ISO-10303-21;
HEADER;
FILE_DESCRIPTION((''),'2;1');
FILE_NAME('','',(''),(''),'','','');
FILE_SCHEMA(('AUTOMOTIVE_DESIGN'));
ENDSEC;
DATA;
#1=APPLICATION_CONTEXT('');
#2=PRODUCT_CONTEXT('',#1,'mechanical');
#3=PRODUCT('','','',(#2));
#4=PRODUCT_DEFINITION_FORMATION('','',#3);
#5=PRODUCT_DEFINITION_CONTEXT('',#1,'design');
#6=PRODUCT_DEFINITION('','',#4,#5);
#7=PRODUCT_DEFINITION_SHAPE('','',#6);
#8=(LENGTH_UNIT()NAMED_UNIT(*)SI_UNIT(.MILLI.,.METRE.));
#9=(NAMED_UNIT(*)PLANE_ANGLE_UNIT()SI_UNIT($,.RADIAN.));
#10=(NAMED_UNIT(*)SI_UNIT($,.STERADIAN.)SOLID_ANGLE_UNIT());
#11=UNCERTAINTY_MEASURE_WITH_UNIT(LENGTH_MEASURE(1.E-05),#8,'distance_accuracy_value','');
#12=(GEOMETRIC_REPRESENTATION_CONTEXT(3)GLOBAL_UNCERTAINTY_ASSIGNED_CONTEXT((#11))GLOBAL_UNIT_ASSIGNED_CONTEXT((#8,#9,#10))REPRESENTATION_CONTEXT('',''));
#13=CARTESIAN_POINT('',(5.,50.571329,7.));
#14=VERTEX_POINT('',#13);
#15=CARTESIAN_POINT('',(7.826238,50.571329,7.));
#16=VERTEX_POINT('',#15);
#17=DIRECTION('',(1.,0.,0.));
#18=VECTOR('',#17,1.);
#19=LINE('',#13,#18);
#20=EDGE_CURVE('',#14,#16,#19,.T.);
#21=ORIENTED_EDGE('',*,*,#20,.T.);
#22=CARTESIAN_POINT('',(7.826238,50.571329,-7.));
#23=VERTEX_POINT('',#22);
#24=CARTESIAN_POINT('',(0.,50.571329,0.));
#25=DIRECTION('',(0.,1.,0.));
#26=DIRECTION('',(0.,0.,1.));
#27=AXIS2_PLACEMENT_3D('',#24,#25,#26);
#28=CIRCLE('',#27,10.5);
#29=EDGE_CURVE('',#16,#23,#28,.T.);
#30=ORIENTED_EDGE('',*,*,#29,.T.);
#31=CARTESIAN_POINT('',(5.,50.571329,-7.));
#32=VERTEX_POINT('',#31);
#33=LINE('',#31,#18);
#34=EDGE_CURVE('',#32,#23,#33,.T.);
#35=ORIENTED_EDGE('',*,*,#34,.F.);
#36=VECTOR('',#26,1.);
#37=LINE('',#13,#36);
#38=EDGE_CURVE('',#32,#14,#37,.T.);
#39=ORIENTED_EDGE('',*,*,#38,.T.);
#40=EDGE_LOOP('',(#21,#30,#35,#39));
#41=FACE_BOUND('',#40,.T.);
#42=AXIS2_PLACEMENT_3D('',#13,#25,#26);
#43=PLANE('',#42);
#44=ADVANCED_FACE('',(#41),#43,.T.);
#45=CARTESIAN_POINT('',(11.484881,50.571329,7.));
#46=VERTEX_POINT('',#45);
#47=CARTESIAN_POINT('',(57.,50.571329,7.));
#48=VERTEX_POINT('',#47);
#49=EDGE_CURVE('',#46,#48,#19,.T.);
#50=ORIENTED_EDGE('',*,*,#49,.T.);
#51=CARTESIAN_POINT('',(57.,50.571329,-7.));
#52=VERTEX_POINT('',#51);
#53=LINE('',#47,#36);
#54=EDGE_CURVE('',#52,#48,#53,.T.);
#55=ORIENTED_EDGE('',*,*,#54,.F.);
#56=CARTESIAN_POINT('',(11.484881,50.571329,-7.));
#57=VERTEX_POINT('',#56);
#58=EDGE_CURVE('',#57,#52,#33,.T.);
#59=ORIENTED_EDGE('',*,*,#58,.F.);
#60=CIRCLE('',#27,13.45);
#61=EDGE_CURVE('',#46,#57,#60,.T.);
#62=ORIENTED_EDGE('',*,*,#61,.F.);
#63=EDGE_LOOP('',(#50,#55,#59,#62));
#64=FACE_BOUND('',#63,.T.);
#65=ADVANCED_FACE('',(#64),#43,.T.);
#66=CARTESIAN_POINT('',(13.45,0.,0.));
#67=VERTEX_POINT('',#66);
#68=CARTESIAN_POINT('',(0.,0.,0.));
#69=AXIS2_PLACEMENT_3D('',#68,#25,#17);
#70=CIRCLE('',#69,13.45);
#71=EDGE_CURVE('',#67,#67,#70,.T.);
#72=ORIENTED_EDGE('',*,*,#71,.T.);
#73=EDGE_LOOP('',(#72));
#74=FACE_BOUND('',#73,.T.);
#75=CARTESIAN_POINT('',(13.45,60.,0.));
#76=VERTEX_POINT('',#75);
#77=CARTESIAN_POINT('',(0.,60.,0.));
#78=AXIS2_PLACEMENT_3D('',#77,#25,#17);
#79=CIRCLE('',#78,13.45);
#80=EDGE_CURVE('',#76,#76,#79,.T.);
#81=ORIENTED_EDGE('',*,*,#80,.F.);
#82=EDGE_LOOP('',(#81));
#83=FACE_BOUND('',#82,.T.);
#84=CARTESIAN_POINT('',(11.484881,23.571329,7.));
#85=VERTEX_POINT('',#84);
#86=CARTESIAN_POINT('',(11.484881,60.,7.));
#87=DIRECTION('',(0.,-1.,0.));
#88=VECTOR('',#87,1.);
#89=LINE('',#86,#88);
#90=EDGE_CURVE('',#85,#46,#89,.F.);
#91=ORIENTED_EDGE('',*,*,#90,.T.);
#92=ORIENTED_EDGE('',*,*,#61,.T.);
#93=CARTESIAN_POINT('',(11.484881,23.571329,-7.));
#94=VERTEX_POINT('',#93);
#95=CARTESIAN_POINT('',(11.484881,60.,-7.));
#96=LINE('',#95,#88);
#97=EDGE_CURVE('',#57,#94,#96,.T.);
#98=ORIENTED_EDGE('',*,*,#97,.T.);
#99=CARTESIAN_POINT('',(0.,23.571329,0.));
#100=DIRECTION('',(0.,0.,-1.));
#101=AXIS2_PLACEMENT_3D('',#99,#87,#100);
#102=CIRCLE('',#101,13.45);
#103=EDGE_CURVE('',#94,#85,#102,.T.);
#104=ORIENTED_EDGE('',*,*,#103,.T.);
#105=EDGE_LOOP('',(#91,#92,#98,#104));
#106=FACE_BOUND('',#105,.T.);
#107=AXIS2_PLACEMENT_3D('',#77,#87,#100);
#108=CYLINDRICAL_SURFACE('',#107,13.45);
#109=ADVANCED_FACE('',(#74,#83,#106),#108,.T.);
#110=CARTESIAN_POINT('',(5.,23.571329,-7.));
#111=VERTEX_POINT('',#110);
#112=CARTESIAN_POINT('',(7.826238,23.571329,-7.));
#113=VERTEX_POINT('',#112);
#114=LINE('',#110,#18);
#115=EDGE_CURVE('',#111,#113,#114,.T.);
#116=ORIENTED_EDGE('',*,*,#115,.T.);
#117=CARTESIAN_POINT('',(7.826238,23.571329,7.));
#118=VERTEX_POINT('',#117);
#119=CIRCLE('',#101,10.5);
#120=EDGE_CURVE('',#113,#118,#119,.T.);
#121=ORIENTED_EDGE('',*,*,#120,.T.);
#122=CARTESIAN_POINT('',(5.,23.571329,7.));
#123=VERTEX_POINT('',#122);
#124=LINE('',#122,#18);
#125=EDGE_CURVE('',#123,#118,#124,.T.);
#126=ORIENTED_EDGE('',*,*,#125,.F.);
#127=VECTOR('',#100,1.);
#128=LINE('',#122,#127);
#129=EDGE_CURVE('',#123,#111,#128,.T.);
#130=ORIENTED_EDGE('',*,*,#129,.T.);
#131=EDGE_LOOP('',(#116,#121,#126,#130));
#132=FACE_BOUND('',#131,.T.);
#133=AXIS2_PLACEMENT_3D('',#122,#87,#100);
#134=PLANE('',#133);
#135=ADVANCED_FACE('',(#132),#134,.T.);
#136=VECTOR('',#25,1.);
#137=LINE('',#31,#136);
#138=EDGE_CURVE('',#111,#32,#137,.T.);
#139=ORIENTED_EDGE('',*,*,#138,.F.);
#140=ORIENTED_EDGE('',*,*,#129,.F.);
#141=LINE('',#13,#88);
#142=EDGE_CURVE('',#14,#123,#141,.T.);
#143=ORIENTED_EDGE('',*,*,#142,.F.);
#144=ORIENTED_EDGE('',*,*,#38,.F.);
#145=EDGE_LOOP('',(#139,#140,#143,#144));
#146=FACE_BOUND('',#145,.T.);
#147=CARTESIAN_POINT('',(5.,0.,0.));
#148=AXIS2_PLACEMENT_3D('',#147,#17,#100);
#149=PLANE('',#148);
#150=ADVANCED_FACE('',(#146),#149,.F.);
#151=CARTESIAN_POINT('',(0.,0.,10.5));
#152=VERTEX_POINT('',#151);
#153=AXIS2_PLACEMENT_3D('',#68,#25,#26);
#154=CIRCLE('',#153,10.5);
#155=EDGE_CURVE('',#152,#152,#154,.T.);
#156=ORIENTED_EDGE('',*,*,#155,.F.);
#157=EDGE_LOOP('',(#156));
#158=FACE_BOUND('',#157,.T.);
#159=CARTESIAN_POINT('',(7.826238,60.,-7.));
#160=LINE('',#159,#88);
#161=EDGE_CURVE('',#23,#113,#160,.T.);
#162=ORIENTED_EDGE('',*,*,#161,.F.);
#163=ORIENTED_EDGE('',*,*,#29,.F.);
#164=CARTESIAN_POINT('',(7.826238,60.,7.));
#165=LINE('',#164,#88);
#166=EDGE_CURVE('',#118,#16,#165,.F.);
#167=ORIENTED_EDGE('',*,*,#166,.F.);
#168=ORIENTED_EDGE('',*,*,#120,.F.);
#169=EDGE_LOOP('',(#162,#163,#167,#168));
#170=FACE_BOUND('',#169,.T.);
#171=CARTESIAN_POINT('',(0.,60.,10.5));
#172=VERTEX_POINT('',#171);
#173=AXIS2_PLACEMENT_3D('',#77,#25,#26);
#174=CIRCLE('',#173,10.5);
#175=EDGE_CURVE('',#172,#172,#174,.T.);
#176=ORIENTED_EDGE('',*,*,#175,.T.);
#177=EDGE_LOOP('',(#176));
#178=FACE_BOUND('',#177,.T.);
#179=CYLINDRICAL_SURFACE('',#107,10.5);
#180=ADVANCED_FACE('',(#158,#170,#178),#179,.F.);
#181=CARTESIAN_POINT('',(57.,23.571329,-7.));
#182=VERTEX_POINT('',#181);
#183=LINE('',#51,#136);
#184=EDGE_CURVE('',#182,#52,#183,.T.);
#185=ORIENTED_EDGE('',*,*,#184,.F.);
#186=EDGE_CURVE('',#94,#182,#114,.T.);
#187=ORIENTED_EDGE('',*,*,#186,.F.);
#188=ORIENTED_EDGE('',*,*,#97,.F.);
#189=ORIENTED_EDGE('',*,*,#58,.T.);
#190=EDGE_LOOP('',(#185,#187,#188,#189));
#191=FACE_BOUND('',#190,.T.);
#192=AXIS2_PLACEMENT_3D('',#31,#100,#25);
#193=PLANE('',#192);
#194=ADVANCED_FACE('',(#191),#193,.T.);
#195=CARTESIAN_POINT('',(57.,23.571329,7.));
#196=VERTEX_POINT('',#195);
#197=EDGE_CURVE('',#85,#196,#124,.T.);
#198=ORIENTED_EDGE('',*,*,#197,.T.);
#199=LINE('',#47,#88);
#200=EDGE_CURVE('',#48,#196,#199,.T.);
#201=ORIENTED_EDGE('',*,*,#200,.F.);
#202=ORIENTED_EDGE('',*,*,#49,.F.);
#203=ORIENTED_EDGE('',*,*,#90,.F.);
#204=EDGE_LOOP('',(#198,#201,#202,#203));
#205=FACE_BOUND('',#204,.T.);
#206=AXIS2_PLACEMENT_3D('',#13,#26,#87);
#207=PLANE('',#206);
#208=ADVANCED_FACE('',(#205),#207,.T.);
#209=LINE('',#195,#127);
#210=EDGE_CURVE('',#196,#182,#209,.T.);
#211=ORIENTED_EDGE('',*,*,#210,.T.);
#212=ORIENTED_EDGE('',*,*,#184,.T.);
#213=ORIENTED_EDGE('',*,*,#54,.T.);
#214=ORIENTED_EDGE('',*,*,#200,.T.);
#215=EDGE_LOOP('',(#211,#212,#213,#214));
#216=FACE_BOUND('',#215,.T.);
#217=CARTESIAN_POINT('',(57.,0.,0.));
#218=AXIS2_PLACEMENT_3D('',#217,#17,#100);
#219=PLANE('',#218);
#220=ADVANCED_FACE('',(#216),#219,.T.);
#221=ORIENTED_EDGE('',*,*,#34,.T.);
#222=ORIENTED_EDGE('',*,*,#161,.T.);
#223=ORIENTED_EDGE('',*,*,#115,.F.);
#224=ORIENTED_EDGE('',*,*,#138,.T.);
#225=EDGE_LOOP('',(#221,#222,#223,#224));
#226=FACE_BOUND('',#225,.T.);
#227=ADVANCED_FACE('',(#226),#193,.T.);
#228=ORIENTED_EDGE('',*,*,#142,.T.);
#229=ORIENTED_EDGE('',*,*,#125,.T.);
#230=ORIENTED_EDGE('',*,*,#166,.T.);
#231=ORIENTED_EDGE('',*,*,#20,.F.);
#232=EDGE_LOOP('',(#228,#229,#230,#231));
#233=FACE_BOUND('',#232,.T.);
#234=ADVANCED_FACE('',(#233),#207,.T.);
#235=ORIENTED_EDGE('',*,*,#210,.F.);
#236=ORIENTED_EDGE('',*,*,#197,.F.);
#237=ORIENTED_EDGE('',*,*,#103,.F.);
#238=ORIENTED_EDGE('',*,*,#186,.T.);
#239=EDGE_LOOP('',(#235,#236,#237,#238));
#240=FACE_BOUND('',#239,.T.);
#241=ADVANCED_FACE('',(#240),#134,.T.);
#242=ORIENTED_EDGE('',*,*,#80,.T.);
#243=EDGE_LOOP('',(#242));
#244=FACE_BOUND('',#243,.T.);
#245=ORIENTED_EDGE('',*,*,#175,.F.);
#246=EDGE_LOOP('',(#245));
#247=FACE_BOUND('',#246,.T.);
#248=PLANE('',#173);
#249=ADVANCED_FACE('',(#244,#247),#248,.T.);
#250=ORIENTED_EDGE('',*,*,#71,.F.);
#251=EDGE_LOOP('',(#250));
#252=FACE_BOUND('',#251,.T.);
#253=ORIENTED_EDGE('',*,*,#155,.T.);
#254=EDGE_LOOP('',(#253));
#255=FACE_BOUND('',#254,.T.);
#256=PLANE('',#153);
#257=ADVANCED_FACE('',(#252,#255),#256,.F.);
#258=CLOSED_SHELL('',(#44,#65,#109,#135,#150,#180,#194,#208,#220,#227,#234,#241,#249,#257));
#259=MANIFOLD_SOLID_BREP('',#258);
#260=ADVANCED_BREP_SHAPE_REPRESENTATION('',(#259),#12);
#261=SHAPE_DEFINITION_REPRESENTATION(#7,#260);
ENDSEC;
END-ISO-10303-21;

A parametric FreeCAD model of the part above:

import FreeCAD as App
import Part
import Sketcher

V = App.Vector
Q = App.Units.Quantity


def add_polygon(sketch, points):
    """Adds a closed chain of lines whose ends are joined by coincident constraints."""
    first, n = sketch.GeometryCount, len(points)
    for a, b in zip(points, points[1:] + points[:1]):
        sketch.addGeometry(Part.LineSegment(App.Vector(*a, 0), App.Vector(*b, 0)), False)
    for i in range(n):
        sketch.addConstraint(Sketcher.Constraint("Coincident", first + i, 2, first + (i + 1) % n, 1))

doc = App.newDocument("Part")
body = doc.addObject("PartDesign::Body", "Body")

# Sketch on XZ plane
sketch1 = body.newObject("Sketcher::SketchObject", "Sketch")
sketch1.AttachmentSupport = (doc.getObject("XZ_Plane"), [""])
sketch1.MapMode = "FlatFace"
sketch1.addGeometry([
    Part.Circle(V(0, 0, 0), V(0, 0, 1), 13),
    Part.Circle(V(0, 0, 0), V(0, 0, 1), 10),
], False)
sketch1.addConstraint([
    Sketcher.Constraint("Coincident", 0, 3, -1, 1),
    Sketcher.Constraint("Coincident", 1, 3, -1, 1),
    Sketcher.Constraint("Diameter", 1, Q("21 mm")),
    Sketcher.Constraint("Diameter", 0, Q("26.9 mm")),
])
pad1 = body.newObject("PartDesign::Pad", "Pad")
pad1.Profile = sketch1
pad1.Length = 60
pad1.Reversed = True

# Sketch on YZ plane
sketch2 = body.newObject("Sketcher::SketchObject", "Sketch001")
sketch2.AttachmentSupport = (doc.getObject("YZ_Plane"), [""])
sketch2.MapMode = "FlatFace"
sketch2.AttachmentOffset = App.Placement(V(0, 0, 10), App.Rotation())
add_polygon(sketch2, [(51, 7), (24, 7), (24, -7), (51, -7)])  # lines 0-3
sketch2.addConstraint([
    Sketcher.Constraint("Horizontal", 0),
    Sketcher.Constraint("Vertical", 1),
    Sketcher.Constraint("Horizontal", 2),
    Sketcher.Constraint("Vertical", 3),
    Sketcher.Constraint("DistanceX", 0, 2, 0, 1, Q("27 mm")),
    Sketcher.Constraint("DistanceY", 1, 2, 1, 1, Q("14 mm")),
    Sketcher.Constraint("DistanceY", -1, 1, 0, 2, Q("7 mm")),
    Sketcher.Constraint("DistanceX", -1, 1, 0, 2, Q("23.571329 mm")),
])
pad2 = body.newObject("PartDesign::Pad", "Pad001")
pad2.Profile = sketch2
pad2.Type = "TwoLengths"
pad2.Length = 47
pad2.Length2 = 5

doc.recompute()
